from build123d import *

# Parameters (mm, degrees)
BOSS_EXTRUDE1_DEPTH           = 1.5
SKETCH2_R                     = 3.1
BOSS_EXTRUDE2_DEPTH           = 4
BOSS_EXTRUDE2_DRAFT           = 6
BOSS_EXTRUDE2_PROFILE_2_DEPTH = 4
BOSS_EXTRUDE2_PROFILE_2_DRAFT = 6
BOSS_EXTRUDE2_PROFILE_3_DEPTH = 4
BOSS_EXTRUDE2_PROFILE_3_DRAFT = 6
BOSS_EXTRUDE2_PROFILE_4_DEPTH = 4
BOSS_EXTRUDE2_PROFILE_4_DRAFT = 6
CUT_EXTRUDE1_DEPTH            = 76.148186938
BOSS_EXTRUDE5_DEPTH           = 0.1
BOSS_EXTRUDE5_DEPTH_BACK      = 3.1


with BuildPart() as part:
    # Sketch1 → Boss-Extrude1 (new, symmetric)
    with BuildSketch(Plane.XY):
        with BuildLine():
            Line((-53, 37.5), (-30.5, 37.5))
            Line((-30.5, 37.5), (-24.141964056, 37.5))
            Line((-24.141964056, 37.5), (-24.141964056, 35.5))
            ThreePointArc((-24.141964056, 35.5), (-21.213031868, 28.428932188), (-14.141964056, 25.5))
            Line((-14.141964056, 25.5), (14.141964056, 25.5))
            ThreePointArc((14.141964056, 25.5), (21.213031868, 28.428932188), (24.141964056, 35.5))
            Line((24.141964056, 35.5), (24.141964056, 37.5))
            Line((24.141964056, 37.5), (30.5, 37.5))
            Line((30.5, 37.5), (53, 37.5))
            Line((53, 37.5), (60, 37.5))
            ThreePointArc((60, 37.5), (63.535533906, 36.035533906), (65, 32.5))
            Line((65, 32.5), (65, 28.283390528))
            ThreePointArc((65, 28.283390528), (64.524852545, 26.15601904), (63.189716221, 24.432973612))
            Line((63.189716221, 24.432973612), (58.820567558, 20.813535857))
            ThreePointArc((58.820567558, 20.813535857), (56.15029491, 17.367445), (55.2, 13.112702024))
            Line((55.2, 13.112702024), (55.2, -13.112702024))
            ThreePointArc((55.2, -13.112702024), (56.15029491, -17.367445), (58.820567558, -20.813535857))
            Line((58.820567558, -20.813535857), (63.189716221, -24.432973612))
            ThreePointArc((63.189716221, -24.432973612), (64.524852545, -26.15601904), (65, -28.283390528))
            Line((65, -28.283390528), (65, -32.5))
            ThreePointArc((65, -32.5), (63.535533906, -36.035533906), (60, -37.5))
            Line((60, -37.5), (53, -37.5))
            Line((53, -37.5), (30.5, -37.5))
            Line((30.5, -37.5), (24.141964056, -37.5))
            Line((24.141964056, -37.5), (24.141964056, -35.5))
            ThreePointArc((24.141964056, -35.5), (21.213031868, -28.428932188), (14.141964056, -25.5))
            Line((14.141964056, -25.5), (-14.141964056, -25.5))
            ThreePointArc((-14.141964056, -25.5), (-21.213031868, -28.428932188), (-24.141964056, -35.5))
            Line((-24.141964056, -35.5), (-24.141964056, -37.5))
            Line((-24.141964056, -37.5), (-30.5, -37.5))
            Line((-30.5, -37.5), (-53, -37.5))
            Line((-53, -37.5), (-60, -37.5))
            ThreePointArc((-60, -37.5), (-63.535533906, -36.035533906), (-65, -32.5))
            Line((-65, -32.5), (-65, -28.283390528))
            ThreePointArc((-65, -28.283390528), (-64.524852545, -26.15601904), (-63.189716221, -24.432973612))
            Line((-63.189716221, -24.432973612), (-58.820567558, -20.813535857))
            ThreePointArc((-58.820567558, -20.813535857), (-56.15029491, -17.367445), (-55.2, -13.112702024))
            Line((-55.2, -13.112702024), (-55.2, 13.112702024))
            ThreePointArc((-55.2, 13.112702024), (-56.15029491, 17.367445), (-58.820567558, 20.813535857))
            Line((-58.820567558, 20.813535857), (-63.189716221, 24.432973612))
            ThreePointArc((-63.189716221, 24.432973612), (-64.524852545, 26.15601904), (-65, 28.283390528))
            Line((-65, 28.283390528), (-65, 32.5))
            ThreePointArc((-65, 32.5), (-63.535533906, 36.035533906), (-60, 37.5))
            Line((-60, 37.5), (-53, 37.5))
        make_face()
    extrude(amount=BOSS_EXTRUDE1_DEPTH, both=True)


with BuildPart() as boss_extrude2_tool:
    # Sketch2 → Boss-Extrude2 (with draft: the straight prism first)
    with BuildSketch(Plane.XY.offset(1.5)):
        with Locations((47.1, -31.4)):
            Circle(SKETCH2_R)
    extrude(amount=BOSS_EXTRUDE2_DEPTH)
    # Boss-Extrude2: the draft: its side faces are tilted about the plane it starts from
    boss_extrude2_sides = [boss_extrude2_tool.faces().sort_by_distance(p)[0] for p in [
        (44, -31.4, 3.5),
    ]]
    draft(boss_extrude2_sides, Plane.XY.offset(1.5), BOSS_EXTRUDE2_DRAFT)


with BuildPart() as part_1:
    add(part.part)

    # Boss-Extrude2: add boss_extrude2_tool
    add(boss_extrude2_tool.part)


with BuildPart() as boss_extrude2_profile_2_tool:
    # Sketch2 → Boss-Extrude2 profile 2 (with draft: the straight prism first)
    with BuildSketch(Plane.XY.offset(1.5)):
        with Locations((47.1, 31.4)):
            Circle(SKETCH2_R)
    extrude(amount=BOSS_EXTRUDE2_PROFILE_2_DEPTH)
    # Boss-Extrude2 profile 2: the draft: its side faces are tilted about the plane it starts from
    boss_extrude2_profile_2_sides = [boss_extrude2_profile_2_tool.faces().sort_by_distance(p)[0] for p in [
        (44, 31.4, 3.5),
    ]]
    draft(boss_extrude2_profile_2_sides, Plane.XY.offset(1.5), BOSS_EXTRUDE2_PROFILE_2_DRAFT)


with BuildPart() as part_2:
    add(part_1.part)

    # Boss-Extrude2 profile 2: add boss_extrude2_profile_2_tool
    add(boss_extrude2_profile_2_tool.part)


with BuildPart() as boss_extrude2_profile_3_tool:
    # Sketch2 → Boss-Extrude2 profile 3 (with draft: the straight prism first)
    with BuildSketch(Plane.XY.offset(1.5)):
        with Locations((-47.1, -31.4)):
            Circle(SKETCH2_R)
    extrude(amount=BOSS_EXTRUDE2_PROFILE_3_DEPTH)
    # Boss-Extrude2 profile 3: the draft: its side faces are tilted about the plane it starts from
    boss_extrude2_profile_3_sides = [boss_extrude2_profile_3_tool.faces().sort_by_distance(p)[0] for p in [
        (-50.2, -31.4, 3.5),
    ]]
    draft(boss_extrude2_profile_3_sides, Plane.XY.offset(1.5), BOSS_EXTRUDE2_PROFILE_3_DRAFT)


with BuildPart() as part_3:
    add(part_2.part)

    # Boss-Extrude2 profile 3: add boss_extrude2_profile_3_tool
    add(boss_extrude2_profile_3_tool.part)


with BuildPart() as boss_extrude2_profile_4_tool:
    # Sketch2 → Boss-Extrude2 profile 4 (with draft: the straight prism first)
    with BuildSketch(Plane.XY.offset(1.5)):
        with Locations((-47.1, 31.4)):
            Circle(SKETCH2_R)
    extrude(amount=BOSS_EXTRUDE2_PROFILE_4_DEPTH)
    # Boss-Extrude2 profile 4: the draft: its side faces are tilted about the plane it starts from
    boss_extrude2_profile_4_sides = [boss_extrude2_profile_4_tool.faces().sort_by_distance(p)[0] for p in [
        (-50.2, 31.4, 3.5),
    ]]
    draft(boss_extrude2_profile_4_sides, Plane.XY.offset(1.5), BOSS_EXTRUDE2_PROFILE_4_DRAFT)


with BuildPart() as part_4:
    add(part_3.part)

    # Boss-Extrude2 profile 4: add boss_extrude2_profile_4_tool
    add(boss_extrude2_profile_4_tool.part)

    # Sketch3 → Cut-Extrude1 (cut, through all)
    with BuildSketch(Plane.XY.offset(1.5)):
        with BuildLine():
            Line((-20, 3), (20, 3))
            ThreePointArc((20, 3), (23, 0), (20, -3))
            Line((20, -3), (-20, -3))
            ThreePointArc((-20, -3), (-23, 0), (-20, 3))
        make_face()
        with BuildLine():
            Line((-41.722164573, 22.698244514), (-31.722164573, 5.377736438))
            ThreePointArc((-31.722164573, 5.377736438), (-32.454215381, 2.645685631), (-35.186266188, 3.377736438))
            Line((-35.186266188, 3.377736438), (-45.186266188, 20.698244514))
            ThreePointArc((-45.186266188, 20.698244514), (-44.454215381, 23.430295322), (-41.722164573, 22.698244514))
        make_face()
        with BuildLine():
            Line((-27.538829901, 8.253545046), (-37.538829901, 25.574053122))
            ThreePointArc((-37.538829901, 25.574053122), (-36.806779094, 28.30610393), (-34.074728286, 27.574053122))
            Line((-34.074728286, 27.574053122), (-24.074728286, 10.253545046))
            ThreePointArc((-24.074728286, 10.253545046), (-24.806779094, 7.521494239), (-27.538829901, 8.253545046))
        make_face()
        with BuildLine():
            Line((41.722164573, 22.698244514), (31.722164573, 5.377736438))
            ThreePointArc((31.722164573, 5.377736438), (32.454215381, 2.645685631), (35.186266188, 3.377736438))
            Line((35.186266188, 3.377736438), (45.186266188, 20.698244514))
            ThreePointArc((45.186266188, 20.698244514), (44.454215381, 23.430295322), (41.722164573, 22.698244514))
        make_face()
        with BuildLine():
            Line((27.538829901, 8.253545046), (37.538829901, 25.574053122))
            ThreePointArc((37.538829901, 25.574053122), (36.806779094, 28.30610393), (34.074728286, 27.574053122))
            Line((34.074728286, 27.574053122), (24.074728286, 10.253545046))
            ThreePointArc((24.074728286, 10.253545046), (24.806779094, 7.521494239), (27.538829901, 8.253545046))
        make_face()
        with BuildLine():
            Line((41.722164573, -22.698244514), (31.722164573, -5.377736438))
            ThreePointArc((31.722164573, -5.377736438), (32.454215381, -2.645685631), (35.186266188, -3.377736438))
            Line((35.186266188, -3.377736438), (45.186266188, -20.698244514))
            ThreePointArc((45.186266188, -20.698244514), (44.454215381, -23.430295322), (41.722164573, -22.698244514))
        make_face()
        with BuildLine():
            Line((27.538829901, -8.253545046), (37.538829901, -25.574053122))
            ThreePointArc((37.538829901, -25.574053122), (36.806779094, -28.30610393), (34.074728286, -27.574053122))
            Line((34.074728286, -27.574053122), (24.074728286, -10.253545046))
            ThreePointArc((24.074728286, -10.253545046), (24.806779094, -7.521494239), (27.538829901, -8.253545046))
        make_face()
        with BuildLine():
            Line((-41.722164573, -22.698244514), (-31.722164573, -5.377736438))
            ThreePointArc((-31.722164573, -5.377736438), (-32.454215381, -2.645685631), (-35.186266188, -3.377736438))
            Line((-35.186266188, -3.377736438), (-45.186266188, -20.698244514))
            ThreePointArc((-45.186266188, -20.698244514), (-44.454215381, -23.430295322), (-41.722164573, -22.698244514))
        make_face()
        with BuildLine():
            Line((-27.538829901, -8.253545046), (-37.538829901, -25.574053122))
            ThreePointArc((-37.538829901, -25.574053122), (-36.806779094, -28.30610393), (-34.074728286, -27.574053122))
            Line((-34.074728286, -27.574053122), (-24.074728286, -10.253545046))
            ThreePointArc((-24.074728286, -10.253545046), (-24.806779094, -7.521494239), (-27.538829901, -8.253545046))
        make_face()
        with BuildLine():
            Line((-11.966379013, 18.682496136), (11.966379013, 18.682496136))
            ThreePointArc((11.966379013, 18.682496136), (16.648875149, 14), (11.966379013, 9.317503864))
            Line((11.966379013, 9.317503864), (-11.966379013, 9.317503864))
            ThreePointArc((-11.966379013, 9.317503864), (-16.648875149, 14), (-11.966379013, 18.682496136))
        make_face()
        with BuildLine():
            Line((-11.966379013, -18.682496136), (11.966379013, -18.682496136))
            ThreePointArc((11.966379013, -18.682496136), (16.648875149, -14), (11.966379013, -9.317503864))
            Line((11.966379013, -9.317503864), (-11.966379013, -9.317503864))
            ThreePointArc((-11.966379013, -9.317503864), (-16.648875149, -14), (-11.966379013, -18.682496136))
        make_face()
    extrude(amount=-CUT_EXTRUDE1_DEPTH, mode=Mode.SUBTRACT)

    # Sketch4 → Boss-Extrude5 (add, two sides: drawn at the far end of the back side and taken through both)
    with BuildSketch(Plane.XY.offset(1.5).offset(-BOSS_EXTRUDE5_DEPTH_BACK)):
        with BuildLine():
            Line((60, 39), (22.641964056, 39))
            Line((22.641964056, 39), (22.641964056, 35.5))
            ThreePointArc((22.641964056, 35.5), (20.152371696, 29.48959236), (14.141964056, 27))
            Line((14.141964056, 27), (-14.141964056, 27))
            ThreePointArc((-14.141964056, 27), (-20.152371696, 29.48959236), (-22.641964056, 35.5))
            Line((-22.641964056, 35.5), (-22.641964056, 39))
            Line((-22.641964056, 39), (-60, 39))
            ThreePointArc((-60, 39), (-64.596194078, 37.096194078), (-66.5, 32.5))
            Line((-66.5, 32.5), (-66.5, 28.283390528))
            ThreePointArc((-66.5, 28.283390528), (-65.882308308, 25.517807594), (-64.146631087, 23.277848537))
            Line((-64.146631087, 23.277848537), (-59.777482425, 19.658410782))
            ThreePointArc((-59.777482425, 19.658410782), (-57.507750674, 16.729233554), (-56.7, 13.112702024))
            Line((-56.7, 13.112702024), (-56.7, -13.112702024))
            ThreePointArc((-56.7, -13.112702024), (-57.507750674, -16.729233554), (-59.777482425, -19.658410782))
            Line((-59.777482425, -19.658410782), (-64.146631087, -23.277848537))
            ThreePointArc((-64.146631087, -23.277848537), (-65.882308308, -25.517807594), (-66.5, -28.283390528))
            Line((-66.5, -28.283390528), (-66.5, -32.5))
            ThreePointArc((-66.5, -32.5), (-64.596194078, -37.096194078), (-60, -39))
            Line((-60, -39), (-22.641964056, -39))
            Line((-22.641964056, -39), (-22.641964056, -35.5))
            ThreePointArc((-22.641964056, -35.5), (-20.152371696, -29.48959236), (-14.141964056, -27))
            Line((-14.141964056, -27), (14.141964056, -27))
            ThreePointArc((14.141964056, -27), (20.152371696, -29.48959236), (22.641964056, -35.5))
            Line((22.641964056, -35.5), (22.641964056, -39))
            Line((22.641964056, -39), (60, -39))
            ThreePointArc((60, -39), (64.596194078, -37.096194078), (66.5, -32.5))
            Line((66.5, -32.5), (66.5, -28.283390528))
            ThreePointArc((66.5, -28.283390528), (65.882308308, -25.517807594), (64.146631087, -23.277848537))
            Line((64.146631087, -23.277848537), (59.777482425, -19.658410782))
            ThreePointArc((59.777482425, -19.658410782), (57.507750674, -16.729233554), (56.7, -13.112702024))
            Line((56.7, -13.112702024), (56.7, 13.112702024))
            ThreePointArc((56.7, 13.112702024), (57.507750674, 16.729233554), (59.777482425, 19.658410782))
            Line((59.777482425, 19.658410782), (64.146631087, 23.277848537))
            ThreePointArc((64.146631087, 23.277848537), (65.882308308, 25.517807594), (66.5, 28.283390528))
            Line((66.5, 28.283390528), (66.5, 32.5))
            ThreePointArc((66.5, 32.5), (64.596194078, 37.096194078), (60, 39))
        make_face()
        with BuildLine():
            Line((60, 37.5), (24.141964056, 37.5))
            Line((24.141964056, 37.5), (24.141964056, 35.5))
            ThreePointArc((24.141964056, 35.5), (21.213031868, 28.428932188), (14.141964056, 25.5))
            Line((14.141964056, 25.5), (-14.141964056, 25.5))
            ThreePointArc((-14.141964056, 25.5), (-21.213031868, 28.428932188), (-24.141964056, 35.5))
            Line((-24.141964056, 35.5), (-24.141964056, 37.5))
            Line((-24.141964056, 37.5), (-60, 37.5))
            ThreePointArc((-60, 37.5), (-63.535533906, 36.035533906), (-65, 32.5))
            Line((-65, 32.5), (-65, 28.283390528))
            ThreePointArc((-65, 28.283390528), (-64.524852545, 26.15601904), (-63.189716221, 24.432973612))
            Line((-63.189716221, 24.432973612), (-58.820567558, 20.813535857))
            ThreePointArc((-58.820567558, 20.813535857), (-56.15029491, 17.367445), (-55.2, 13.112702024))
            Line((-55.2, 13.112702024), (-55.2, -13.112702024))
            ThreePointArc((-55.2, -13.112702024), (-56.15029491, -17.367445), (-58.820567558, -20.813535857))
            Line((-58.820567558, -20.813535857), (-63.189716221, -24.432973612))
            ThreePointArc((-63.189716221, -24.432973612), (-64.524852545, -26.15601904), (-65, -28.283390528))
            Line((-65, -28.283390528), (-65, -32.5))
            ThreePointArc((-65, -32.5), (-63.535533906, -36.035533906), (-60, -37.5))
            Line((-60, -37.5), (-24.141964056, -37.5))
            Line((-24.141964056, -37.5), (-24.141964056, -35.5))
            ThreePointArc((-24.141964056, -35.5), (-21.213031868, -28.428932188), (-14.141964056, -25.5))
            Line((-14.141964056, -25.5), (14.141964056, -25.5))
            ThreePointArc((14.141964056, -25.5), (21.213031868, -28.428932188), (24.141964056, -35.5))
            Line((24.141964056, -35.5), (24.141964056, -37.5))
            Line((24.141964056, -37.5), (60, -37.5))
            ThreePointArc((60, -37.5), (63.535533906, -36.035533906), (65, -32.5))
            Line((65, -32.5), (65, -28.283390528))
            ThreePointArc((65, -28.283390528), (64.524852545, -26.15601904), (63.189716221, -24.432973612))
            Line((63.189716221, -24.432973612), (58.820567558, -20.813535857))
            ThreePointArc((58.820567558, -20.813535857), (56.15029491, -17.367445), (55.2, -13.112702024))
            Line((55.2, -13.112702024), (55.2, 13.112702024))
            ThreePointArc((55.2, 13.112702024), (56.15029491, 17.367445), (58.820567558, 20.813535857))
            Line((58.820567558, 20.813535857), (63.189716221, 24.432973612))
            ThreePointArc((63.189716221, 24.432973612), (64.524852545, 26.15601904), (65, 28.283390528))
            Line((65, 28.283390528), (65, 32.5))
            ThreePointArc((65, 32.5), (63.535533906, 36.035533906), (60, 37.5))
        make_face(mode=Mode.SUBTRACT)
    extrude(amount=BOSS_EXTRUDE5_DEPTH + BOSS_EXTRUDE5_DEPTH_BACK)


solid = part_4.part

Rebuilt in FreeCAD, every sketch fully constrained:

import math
import FreeCAD as App
import Part
import Sketcher
from FreeCAD import Vector
Q = App.Units.Quantity


def faces_at(feature, points):
    """Names of the faces that lie closest to the given points."""
    faces = feature.Shape.Faces
    near = lambda p: min(range(len(faces)), key=lambda i: faces[i].distToShape(Part.Vertex(*p))[0])
    return sorted({f"Face{near(p) + 1}" for p in points})

doc = App.newDocument("Part")
body = doc.addObject("PartDesign::Body", "Body")

# Sketch on XY plane
sketch1 = doc.addObject("Sketcher::SketchObject", "Sketch")
body.addObject(sketch1)
sketch1.AttachmentSupport = (doc.XY_Plane, [""])
sketch1.MapMode = "FlatFace"
sketch1.addGeometry([
    Part.LineSegment(Vector(-24.1, 35.5, 0), Vector(-24.1, 37.5, 0)),  # 0
    Part.LineSegment(Vector(-24.1, 37.5, 0), Vector(-60, 37.5, 0)),  # 1
    Part.ArcOfCircle(Part.Circle(Vector(-60, 32.5, 0), Vector(0, 0, 1), 5), math.radians(90), math.radians(180)),  # 2
    Part.LineSegment(Vector(-65, 32.5, 0), Vector(-65, 28.3, 0)),  # 3
    Part.ArcOfCircle(Part.Circle(Vector(-60, 28.3, 0), Vector(0, 0, 1), 5), math.radians(180), math.radians(230)),  # 4
    Part.LineSegment(Vector(-63.2, 24.4, 0), Vector(-58.8, 20.8, 0)),  # 5
    Part.ArcOfCircle(Part.Circle(Vector(-65.2, 13.1, 0), Vector(0, 0, 1), 10), math.radians(0), math.radians(50)),  # 6
    Part.LineSegment(Vector(-55.2, 13.1, 0), Vector(-55.2, -13.1, 0)),  # 7
    Part.ArcOfCircle(Part.Circle(Vector(-65.2, -13.1, 0), Vector(0, 0, 1), 10), math.radians(-50), math.radians(0)),  # 8
    Part.LineSegment(Vector(-58.8, -20.8, 0), Vector(-63.2, -24.4, 0)),  # 9
    Part.ArcOfCircle(Part.Circle(Vector(-60, -28.3, 0), Vector(0, 0, 1), 5), math.radians(130), math.radians(180)),  # 10
    Part.LineSegment(Vector(-65, -28.3, 0), Vector(-65, -32.5, 0)),  # 11
    Part.ArcOfCircle(Part.Circle(Vector(-60, -32.5, 0), Vector(0, 0, 1), 5), math.radians(180), math.radians(270)),  # 12
    Part.LineSegment(Vector(-60, -37.5, 0), Vector(-24.1, -37.5, 0)),  # 13
    Part.LineSegment(Vector(-24.1, -37.5, 0), Vector(-24.1, -35.5, 0)),  # 14
    Part.ArcOfCircle(Part.Circle(Vector(-14.1, -35.5, 0), Vector(0, 0, 1), 10), math.radians(90), math.radians(180)),  # 15
    Part.LineSegment(Vector(-14.1, -25.5, 0), Vector(14.1, -25.5, 0)),  # 16
    Part.ArcOfCircle(Part.Circle(Vector(14.1, -35.5, 0), Vector(0, 0, 1), 10), math.radians(0), math.radians(90)),  # 17
    Part.LineSegment(Vector(24.1, -35.5, 0), Vector(24.1, -37.5, 0)),  # 18
    Part.LineSegment(Vector(24.1, -37.5, 0), Vector(60, -37.5, 0)),  # 19
    Part.ArcOfCircle(Part.Circle(Vector(60, -32.5, 0), Vector(0, 0, 1), 5), math.radians(-90), math.radians(0)),  # 20
    Part.LineSegment(Vector(65, -32.5, 0), Vector(65, -28.3, 0)),  # 21
    Part.ArcOfCircle(Part.Circle(Vector(60, -28.3, 0), Vector(0, 0, 1), 5), math.radians(0), math.radians(50)),  # 22
    Part.LineSegment(Vector(63.2, -24.4, 0), Vector(58.8, -20.8, 0)),  # 23
    Part.ArcOfCircle(Part.Circle(Vector(65.2, -13.1, 0), Vector(0, 0, 1), 10), math.radians(180), math.radians(230)),  # 24
    Part.LineSegment(Vector(55.2, -13.1, 0), Vector(55.2, 13.1, 0)),  # 25
    Part.ArcOfCircle(Part.Circle(Vector(65.2, 13.1, 0), Vector(0, 0, 1), 10), math.radians(130), math.radians(180)),  # 26
    Part.LineSegment(Vector(58.8, 20.8, 0), Vector(63.2, 24.4, 0)),  # 27
    Part.ArcOfCircle(Part.Circle(Vector(60, 28.3, 0), Vector(0, 0, 1), 5), math.radians(-50), math.radians(0)),  # 28
    Part.LineSegment(Vector(65, 28.3, 0), Vector(65, 32.5, 0)),  # 29
    Part.ArcOfCircle(Part.Circle(Vector(60, 32.5, 0), Vector(0, 0, 1), 5), math.radians(0), math.radians(90)),  # 30
    Part.LineSegment(Vector(60, 37.5, 0), Vector(24.1, 37.5, 0)),  # 31
    Part.LineSegment(Vector(24.1, 37.5, 0), Vector(24.1, 35.5, 0)),  # 32
    Part.ArcOfCircle(Part.Circle(Vector(14.1, 35.5, 0), Vector(0, 0, 1), 10), math.radians(-90), math.radians(0)),  # 33
    Part.LineSegment(Vector(14.1, 25.5, 0), Vector(-14.1, 25.5, 0)),  # 34
    Part.ArcOfCircle(Part.Circle(Vector(-14.1, 35.5, 0), Vector(0, 0, 1), 10), math.radians(180), math.radians(270)),  # 35
], False)
sketch1.addConstraint([
    Sketcher.Constraint("Coincident", 0, 2, 1, 1),
    Sketcher.Constraint("Tangent", 1, 2, 2, 1),
    Sketcher.Constraint("Tangent", 2, 2, 3, 1),
    Sketcher.Constraint("Tangent", 3, 2, 4, 1),
    Sketcher.Constraint("Tangent", 4, 2, 5, 1),
    Sketcher.Constraint("Tangent", 5, 2, 6, 2),
    Sketcher.Constraint("Tangent", 6, 1, 7, 1),
    Sketcher.Constraint("Tangent", 7, 2, 8, 2),
    Sketcher.Constraint("Tangent", 8, 1, 9, 1),
    Sketcher.Constraint("Tangent", 9, 2, 10, 1),
    Sketcher.Constraint("Tangent", 10, 2, 11, 1),
    Sketcher.Constraint("Tangent", 11, 2, 12, 1),
    Sketcher.Constraint("Tangent", 12, 2, 13, 1),
    Sketcher.Constraint("Coincident", 13, 2, 14, 1),
    Sketcher.Constraint("Tangent", 14, 2, 15, 2),
    Sketcher.Constraint("Tangent", 15, 1, 16, 1),
    Sketcher.Constraint("Tangent", 16, 2, 17, 2),
    Sketcher.Constraint("Tangent", 17, 1, 18, 1),
    Sketcher.Constraint("Coincident", 18, 2, 19, 1),
    Sketcher.Constraint("Tangent", 19, 2, 20, 1),
    Sketcher.Constraint("Tangent", 20, 2, 21, 1),
    Sketcher.Constraint("Tangent", 21, 2, 22, 1),
    Sketcher.Constraint("Tangent", 22, 2, 23, 1),
    Sketcher.Constraint("Tangent", 23, 2, 24, 2),
    Sketcher.Constraint("Tangent", 24, 1, 25, 1),
    Sketcher.Constraint("Tangent", 25, 2, 26, 2),
    Sketcher.Constraint("Tangent", 26, 1, 27, 1),
    Sketcher.Constraint("Tangent", 27, 2, 28, 1),
    Sketcher.Constraint("Tangent", 28, 2, 29, 1),
    Sketcher.Constraint("Tangent", 29, 2, 30, 1),
    Sketcher.Constraint("Tangent", 30, 2, 31, 1),
    Sketcher.Constraint("Coincident", 31, 2, 32, 1),
    Sketcher.Constraint("Tangent", 32, 2, 33, 2),
    Sketcher.Constraint("Tangent", 33, 1, 34, 1),
    Sketcher.Constraint("Tangent", 34, 2, 35, 2),
    Sketcher.Constraint("Tangent", 35, 1, 0, 1),
    Sketcher.Constraint("Vertical", 0),
    Sketcher.Constraint("Horizontal", 1),
    Sketcher.Constraint("Vertical", 3),
    Sketcher.Constraint("Vertical", 7),
    Sketcher.Constraint("Vertical", 11),
    Sketcher.Constraint("Horizontal", 13),
    Sketcher.Constraint("Vertical", 14),
    Sketcher.Constraint("Horizontal", 16),
    Sketcher.Constraint("Vertical", 18),
    Sketcher.Constraint("Horizontal", 19),
    Sketcher.Constraint("Vertical", 21),
    Sketcher.Constraint("Vertical", 25),
    Sketcher.Constraint("Vertical", 29),
    Sketcher.Constraint("Horizontal", 31),
    Sketcher.Constraint("Vertical", 32),
    Sketcher.Constraint("Horizontal", 34),
    Sketcher.Constraint("Equal", 2, 4),
    Sketcher.Constraint("Equal", 6, 8),
    Sketcher.Constraint("Equal", 4, 10),
    Sketcher.Constraint("Equal", 10, 12),
    Sketcher.Constraint("Equal", 8, 15),
    Sketcher.Constraint("Equal", 15, 17),
    Sketcher.Constraint("Equal", 12, 20),
    Sketcher.Constraint("Equal", 20, 22),
    Sketcher.Constraint("Equal", 17, 24),
    Sketcher.Constraint("Equal", 24, 26),
    Sketcher.Constraint("Equal", 22, 28),
    Sketcher.Constraint("Equal", 28, 30),
    Sketcher.Constraint("Equal", 26, 33),
    Sketcher.Constraint("Equal", 33, 35),
    Sketcher.Constraint("Symmetric", 2, 3, 20, 3, -1, 1),
    Sketcher.Constraint("Symmetric", 6, 3, 24, 3, -1, 1),
    Sketcher.Constraint("Symmetric", 10, 3, 28, 3, -1, 1),
    Sketcher.Constraint("Symmetric", 15, 3, 33, 3, -1, 1),
    Sketcher.Constraint("Symmetric", 12, 3, 20, 3, -2),
    Sketcher.Constraint("Symmetric", 9, 2, 22, 2, -2),
    Sketcher.Constraint("Symmetric", 5, 2, 26, 1, -2),
    Sketcher.Constraint("Symmetric", 0, 2, 31, 2, -2),
    Sketcher.Constraint("Vertical", 17, 3, 33, 3),
    Sketcher.Constraint("Radius", 2, Q("5 mm")),
    Sketcher.Constraint("Radius", 6, Q("10 mm")),
    Sketcher.Constraint("DistanceY", 0, 1, 0, 2, Q("2 mm")),
    Sketcher.Constraint("DistanceX", 2, 3, -1, 1, Q("60 mm")),
    Sketcher.Constraint("DistanceY", 12, 3, 2, 3, Q("65 mm")),
    Sketcher.Constraint("DistanceX", 6, 3, -1, 1, Q("65.2 mm")),
    Sketcher.Constraint("DistanceX", 16, 1, 16, 2, Q("28.283928 mm")),
    Sketcher.Constraint("DistanceY", 3, 2, 3, 1, Q("4.216609 mm")),
    Sketcher.Constraint("DistanceY", 7, 2, 7, 1, Q("26.225404 mm")),
])
pad1 = doc.addObject("PartDesign::Pad", "Pad")
body.addObject(pad1)
pad1.Profile = sketch1
pad1.Length = 3
pad1.Midplane = True
body2 = doc.addObject("PartDesign::Body", "Body001")

# Sketch on XY plane
sketch2 = doc.addObject("Sketcher::SketchObject", "Sketch001")
body2.addObject(sketch2)
sketch2.AttachmentSupport = (doc.getObject("XY_Plane001"), [""])
sketch2.MapMode = "FlatFace"
sketch2.AttachmentOffset = App.Placement(Vector(0, 0, 1.5), App.Rotation())
sketch2.addGeometry(Part.Circle(Vector(47.1, -31.4, 0), Vector(0, 0, 1), 3.1), False)
sketch2.addConstraint([
    Sketcher.Constraint("Diameter", 0, Q("6.2 mm")),
    Sketcher.Constraint("DistanceX", -1, 1, 0, 3, Q("47.1 mm")),
    Sketcher.Constraint("DistanceY", 0, 3, -1, 1, Q("31.4 mm")),
])
pad2 = doc.addObject("PartDesign::Pad", "Pad001")
body2.addObject(pad2)
pad2.Profile = sketch2
pad2.Length = 4
doc.recompute()

datumplane = doc.addObject("PartDesign::Plane", "DatumPlane")
body2.addObject(datumplane)
datumplane.AttachmentSupport = (doc.getObject("XY_Plane001"), [""])
datumplane.MapMode = "FlatFace"
datumplane.AttachmentOffset = App.Placement(Vector(0, 0, 1.5), App.Rotation())
draft = doc.addObject("PartDesign::Draft", "Draft")
body2.addObject(draft)
draft.Base = (pad2, faces_at(pad2, [(44, -31.4, 3.5)]))
draft.NeutralPlane = (datumplane, [""])
draft.Angle = 6
draft.Reversed = False
doc.recompute()

boolean = doc.addObject("PartDesign::Boolean", "Boolean")
body.addObject(boolean)
boolean.Type = "Fuse"
boolean.addObjects([body2])
body3 = doc.addObject("PartDesign::Body", "Body002")

# Sketch on XY plane
sketch3 = doc.addObject("Sketcher::SketchObject", "Sketch002")
body3.addObject(sketch3)
sketch3.AttachmentSupport = (doc.getObject("XY_Plane002"), [""])
sketch3.MapMode = "FlatFace"
sketch3.AttachmentOffset = App.Placement(Vector(0, 0, 1.5), App.Rotation())
sketch3.addGeometry(Part.Circle(Vector(47.1, 31.4, 0), Vector(0, 0, 1), 3.1), False)
sketch3.addConstraint([
    Sketcher.Constraint("Diameter", 0, Q("6.2 mm")),
    Sketcher.Constraint("DistanceX", -1, 1, 0, 3, Q("47.1 mm")),
    Sketcher.Constraint("DistanceY", -1, 1, 0, 3, Q("31.4 mm")),
])
pad3 = doc.addObject("PartDesign::Pad", "Pad002")
body3.addObject(pad3)
pad3.Profile = sketch3
pad3.Length = 4
doc.recompute()

datumplane2 = doc.addObject("PartDesign::Plane", "DatumPlane001")
body3.addObject(datumplane2)
datumplane2.AttachmentSupport = (doc.getObject("XY_Plane002"), [""])
datumplane2.MapMode = "FlatFace"
datumplane2.AttachmentOffset = App.Placement(Vector(0, 0, 1.5), App.Rotation())
draft2 = doc.addObject("PartDesign::Draft", "Draft001")
body3.addObject(draft2)
draft2.Base = (pad3, faces_at(pad3, [(44, 31.4, 3.5)]))
draft2.NeutralPlane = (datumplane2, [""])
draft2.Angle = 6
draft2.Reversed = False
doc.recompute()

boolean2 = doc.addObject("PartDesign::Boolean", "Boolean001")
body.addObject(boolean2)
boolean2.Type = "Fuse"
boolean2.addObjects([body3])
body4 = doc.addObject("PartDesign::Body", "Body003")

# Sketch on XY plane
sketch4 = doc.addObject("Sketcher::SketchObject", "Sketch003")
body4.addObject(sketch4)
sketch4.AttachmentSupport = (doc.getObject("XY_Plane003"), [""])
sketch4.MapMode = "FlatFace"
sketch4.AttachmentOffset = App.Placement(Vector(0, 0, 1.5), App.Rotation())
sketch4.addGeometry(Part.Circle(Vector(-47.1, -31.4, 0), Vector(0, 0, 1), 3.1), False)
sketch4.addConstraint([
    Sketcher.Constraint("Diameter", 0, Q("6.2 mm")),
    Sketcher.Constraint("DistanceX", 0, 3, -1, 1, Q("47.1 mm")),
    Sketcher.Constraint("DistanceY", 0, 3, -1, 1, Q("31.4 mm")),
])
pad4 = doc.addObject("PartDesign::Pad", "Pad003")
body4.addObject(pad4)
pad4.Profile = sketch4
pad4.Length = 4
doc.recompute()

datumplane3 = doc.addObject("PartDesign::Plane", "DatumPlane002")
body4.addObject(datumplane3)
datumplane3.AttachmentSupport = (doc.getObject("XY_Plane003"), [""])
datumplane3.MapMode = "FlatFace"
datumplane3.AttachmentOffset = App.Placement(Vector(0, 0, 1.5), App.Rotation())
draft3 = doc.addObject("PartDesign::Draft", "Draft002")
body4.addObject(draft3)
draft3.Base = (pad4, faces_at(pad4, [(-50.2, -31.4, 3.5)]))
draft3.NeutralPlane = (datumplane3, [""])
draft3.Angle = 6
draft3.Reversed = False
doc.recompute()

boolean3 = doc.addObject("PartDesign::Boolean", "Boolean002")
body.addObject(boolean3)
boolean3.Type = "Fuse"
boolean3.addObjects([body4])
body5 = doc.addObject("PartDesign::Body", "Body004")

# Sketch on XY plane
sketch5 = doc.addObject("Sketcher::SketchObject", "Sketch004")
body5.addObject(sketch5)
sketch5.AttachmentSupport = (doc.getObject("XY_Plane004"), [""])
sketch5.MapMode = "FlatFace"
sketch5.AttachmentOffset = App.Placement(Vector(0, 0, 1.5), App.Rotation())
sketch5.addGeometry(Part.Circle(Vector(-47.1, 31.4, 0), Vector(0, 0, 1), 3.1), False)
sketch5.addConstraint([
    Sketcher.Constraint("Diameter", 0, Q("6.2 mm")),
    Sketcher.Constraint("DistanceX", 0, 3, -1, 1, Q("47.1 mm")),
    Sketcher.Constraint("DistanceY", -1, 1, 0, 3, Q("31.4 mm")),
])
pad5 = doc.addObject("PartDesign::Pad", "Pad004")
body5.addObject(pad5)
pad5.Profile = sketch5
pad5.Length = 4
doc.recompute()

datumplane4 = doc.addObject("PartDesign::Plane", "DatumPlane003")
body5.addObject(datumplane4)
datumplane4.AttachmentSupport = (doc.getObject("XY_Plane004"), [""])
datumplane4.MapMode = "FlatFace"
datumplane4.AttachmentOffset = App.Placement(Vector(0, 0, 1.5), App.Rotation())
draft4 = doc.addObject("PartDesign::Draft", "Draft003")
body5.addObject(draft4)
draft4.Base = (pad5, faces_at(pad5, [(-50.2, 31.4, 3.5)]))
draft4.NeutralPlane = (datumplane4, [""])
draft4.Angle = 6
draft4.Reversed = False
doc.recompute()

boolean4 = doc.addObject("PartDesign::Boolean", "Boolean003")
body.addObject(boolean4)
boolean4.Type = "Fuse"
boolean4.addObjects([body5])

# Sketch on XY plane
sketch6 = doc.addObject("Sketcher::SketchObject", "Sketch005")
body.addObject(sketch6)
sketch6.AttachmentSupport = (doc.XY_Plane, [""])
sketch6.MapMode = "FlatFace"
sketch6.AttachmentOffset = App.Placement(Vector(0, 0, 1.5), App.Rotation())
sketch6.addGeometry([
    Part.LineSegment(Vector(20, 3, 0), Vector(-20, 3, 0)),  # 0
    Part.ArcOfCircle(Part.Circle(Vector(-20, 0, 0), Vector(0, 0, 1), 3), math.radians(90), math.radians(270)),  # 1
    Part.LineSegment(Vector(-20, -3, 0), Vector(20, -3, 0)),  # 2
    Part.ArcOfCircle(Part.Circle(Vector(20, 0, 0), Vector(0, 0, 1), 3), math.radians(-90), math.radians(90)),  # 3
    Part.LineSegment(Vector(-31.7, 5.4, 0), Vector(-41.7, 22.7, 0)),  # 4
    Part.ArcOfCircle(Part.Circle(Vector(-43.5, 21.7, 0), Vector(0, 0, 1), 2), math.radians(30), math.radians(210)),  # 5
    Part.LineSegment(Vector(-45.2, 20.7, 0), Vector(-35.2, 3.4, 0)),  # 6
    Part.ArcOfCircle(Part.Circle(Vector(-33.5, 4.4, 0), Vector(0, 0, 1), 2), math.radians(-150), math.radians(30)),  # 7
    Part.LineSegment(Vector(-37.5, 25.6, 0), Vector(-27.5, 8.3, 0)),  # 8
    Part.ArcOfCircle(Part.Circle(Vector(-25.8, 9.3, 0), Vector(0, 0, 1), 2), math.radians(-150), math.radians(30)),  # 9
    Part.LineSegment(Vector(-24.1, 10.3, 0), Vector(-34.1, 27.6, 0)),  # 10
    Part.ArcOfCircle(Part.Circle(Vector(-35.8, 26.6, 0), Vector(0, 0, 1), 2), math.radians(30), math.radians(210)),  # 11
    Part.LineSegment(Vector(41.7, 22.7, 0), Vector(31.7, 5.4, 0)),  # 12
    Part.ArcOfCircle(Part.Circle(Vector(33.5, 4.4, 0), Vector(0, 0, 1), 2), math.radians(150), math.radians(330)),  # 13
    Part.LineSegment(Vector(35.2, 3.4, 0), Vector(45.2, 20.7, 0)),  # 14
    Part.ArcOfCircle(Part.Circle(Vector(43.5, 21.7, 0), Vector(0, 0, 1), 2), math.radians(-30), math.radians(150)),  # 15
    Part.LineSegment(Vector(27.5, 8.3, 0), Vector(37.5, 25.6, 0)),  # 16
    Part.ArcOfCircle(Part.Circle(Vector(35.8, 26.6, 0), Vector(0, 0, 1), 2), math.radians(-30), math.radians(150)),  # 17
    Part.LineSegment(Vector(34.1, 27.6, 0), Vector(24.1, 10.3, 0)),  # 18
    Part.ArcOfCircle(Part.Circle(Vector(25.8, 9.3, 0), Vector(0, 0, 1), 2), math.radians(150), math.radians(330)),  # 19
    Part.LineSegment(Vector(31.7, -5.4, 0), Vector(41.7, -22.7, 0)),  # 20
    Part.ArcOfCircle(Part.Circle(Vector(43.5, -21.7, 0), Vector(0, 0, 1), 2), math.radians(-150), math.radians(30)),  # 21
    Part.LineSegment(Vector(45.2, -20.7, 0), Vector(35.2, -3.4, 0)),  # 22
    Part.ArcOfCircle(Part.Circle(Vector(33.5, -4.4, 0), Vector(0, 0, 1), 2), math.radians(30), math.radians(210)),  # 23
    Part.LineSegment(Vector(37.5, -25.6, 0), Vector(27.5, -8.3, 0)),  # 24
    Part.ArcOfCircle(Part.Circle(Vector(25.8, -9.3, 0), Vector(0, 0, 1), 2), math.radians(30), math.radians(210)),  # 25
    Part.LineSegment(Vector(24.1, -10.3, 0), Vector(34.1, -27.6, 0)),  # 26
    Part.ArcOfCircle(Part.Circle(Vector(35.8, -26.6, 0), Vector(0, 0, 1), 2), math.radians(-150), math.radians(30)),  # 27
    Part.LineSegment(Vector(-41.7, -22.7, 0), Vector(-31.7, -5.4, 0)),  # 28
    Part.ArcOfCircle(Part.Circle(Vector(-33.5, -4.4, 0), Vector(0, 0, 1), 2), math.radians(-30), math.radians(150)),  # 29
    Part.LineSegment(Vector(-35.2, -3.4, 0), Vector(-45.2, -20.7, 0)),  # 30
    Part.ArcOfCircle(Part.Circle(Vector(-43.5, -21.7, 0), Vector(0, 0, 1), 2), math.radians(150), math.radians(330)),  # 31
    Part.LineSegment(Vector(-27.5, -8.3, 0), Vector(-37.5, -25.6, 0)),  # 32
    Part.ArcOfCircle(Part.Circle(Vector(-35.8, -26.6, 0), Vector(0, 0, 1), 2), math.radians(150), math.radians(330)),  # 33
    Part.LineSegment(Vector(-34.1, -27.6, 0), Vector(-24.1, -10.3, 0)),  # 34
    Part.ArcOfCircle(Part.Circle(Vector(-25.8, -9.3, 0), Vector(0, 0, 1), 2), math.radians(-30), math.radians(150)),  # 35
    Part.LineSegment(Vector(12, 18.7, 0), Vector(-12, 18.7, 0)),  # 36
    Part.ArcOfCircle(Part.Circle(Vector(-12, 14, 0), Vector(0, 0, 1), 4.7), math.radians(90), math.radians(270)),  # 37
    Part.LineSegment(Vector(-12, 9.3, 0), Vector(12, 9.3, 0)),  # 38
    Part.ArcOfCircle(Part.Circle(Vector(12, 14, 0), Vector(0, 0, 1), 4.7), math.radians(-90), math.radians(90)),  # 39
    Part.LineSegment(Vector(-12, -18.7, 0), Vector(12, -18.7, 0)),  # 40
    Part.ArcOfCircle(Part.Circle(Vector(12, -14, 0), Vector(0, 0, 1), 4.7), math.radians(-90), math.radians(90)),  # 41
    Part.LineSegment(Vector(12, -9.3, 0), Vector(-12, -9.3, 0)),  # 42
    Part.ArcOfCircle(Part.Circle(Vector(-12, -14, 0), Vector(0, 0, 1), 4.7), math.radians(90), math.radians(270)),  # 43
], False)
sketch6.addConstraint([
    Sketcher.Constraint("Tangent", 0, 2, 1, 1),
    Sketcher.Constraint("Tangent", 1, 2, 2, 1),
    Sketcher.Constraint("Tangent", 2, 2, 3, 1),
    Sketcher.Constraint("Tangent", 3, 2, 0, 1),
    Sketcher.Constraint("Tangent", 4, 2, 5, 1),
    Sketcher.Constraint("Tangent", 5, 2, 6, 1),
    Sketcher.Constraint("Tangent", 6, 2, 7, 1),
    Sketcher.Constraint("Tangent", 7, 2, 4, 1),
    Sketcher.Constraint("Tangent", 8, 2, 9, 1),
    Sketcher.Constraint("Tangent", 9, 2, 10, 1),
    Sketcher.Constraint("Tangent", 10, 2, 11, 1),
    Sketcher.Constraint("Tangent", 11, 2, 8, 1),
    Sketcher.Constraint("Tangent", 12, 2, 13, 1),
    Sketcher.Constraint("Tangent", 13, 2, 14, 1),
    Sketcher.Constraint("Tangent", 14, 2, 15, 1),
    Sketcher.Constraint("Tangent", 15, 2, 12, 1),
    Sketcher.Constraint("Tangent", 16, 2, 17, 1),
    Sketcher.Constraint("Tangent", 17, 2, 18, 1),
    Sketcher.Constraint("Tangent", 18, 2, 19, 1),
    Sketcher.Constraint("Tangent", 19, 2, 16, 1),
    Sketcher.Constraint("Tangent", 20, 2, 21, 1),
    Sketcher.Constraint("Tangent", 21, 2, 22, 1),
    Sketcher.Constraint("Tangent", 22, 2, 23, 1),
    Sketcher.Constraint("Tangent", 23, 2, 20, 1),
    Sketcher.Constraint("Tangent", 24, 2, 25, 1),
    Sketcher.Constraint("Tangent", 25, 2, 26, 1),
    Sketcher.Constraint("Tangent", 26, 2, 27, 1),
    Sketcher.Constraint("Tangent", 27, 2, 24, 1),
    Sketcher.Constraint("Tangent", 28, 2, 29, 1),
    Sketcher.Constraint("Tangent", 29, 2, 30, 1),
    Sketcher.Constraint("Tangent", 30, 2, 31, 1),
    Sketcher.Constraint("Tangent", 31, 2, 28, 1),
    Sketcher.Constraint("Tangent", 32, 2, 33, 1),
    Sketcher.Constraint("Tangent", 33, 2, 34, 1),
    Sketcher.Constraint("Tangent", 34, 2, 35, 1),
    Sketcher.Constraint("Tangent", 35, 2, 32, 1),
    Sketcher.Constraint("Tangent", 36, 2, 37, 1),
    Sketcher.Constraint("Tangent", 37, 2, 38, 1),
    Sketcher.Constraint("Tangent", 38, 2, 39, 1),
    Sketcher.Constraint("Tangent", 39, 2, 36, 1),
    Sketcher.Constraint("Tangent", 40, 2, 41, 1),
    Sketcher.Constraint("Tangent", 41, 2, 42, 1),
    Sketcher.Constraint("Tangent", 42, 2, 43, 1),
    Sketcher.Constraint("Tangent", 43, 2, 40, 1),
    Sketcher.Constraint("Horizontal", 0),
    Sketcher.Constraint("Horizontal", 2),
    Sketcher.Constraint("Horizontal", 36),
    Sketcher.Constraint("Horizontal", 38),
    Sketcher.Constraint("Horizontal", 40),
    Sketcher.Constraint("Horizontal", 42),
    Sketcher.Constraint("Equal", 5, 7),
    Sketcher.Constraint("Equal", 7, 9),
    Sketcher.Constraint("Equal", 9, 11),
    Sketcher.Constraint("Equal", 11, 13),
    Sketcher.Constraint("Equal", 13, 15),
    Sketcher.Constraint("Equal", 15, 17),
    Sketcher.Constraint("Equal", 17, 19),
    Sketcher.Constraint("Equal", 19, 21),
    Sketcher.Constraint("Equal", 21, 23),
    Sketcher.Constraint("Equal", 23, 25),
    Sketcher.Constraint("Equal", 25, 27),
    Sketcher.Constraint("Equal", 27, 29),
    Sketcher.Constraint("Equal", 29, 31),
    Sketcher.Constraint("Equal", 31, 33),
    Sketcher.Constraint("Equal", 33, 35),
    Sketcher.Constraint("Equal", 39, 41),
    Sketcher.Constraint("Symmetric", 1, 3, 3, 3, -1, 1),
    Sketcher.Constraint("Symmetric", 5, 3, 21, 3, -1, 1),
    Sketcher.Constraint("Symmetric", 7, 3, 23, 3, -1, 1),
    Sketcher.Constraint("Symmetric", 9, 3, 25, 3, -1, 1),
    Sketcher.Constraint("Symmetric", 11, 3, 27, 3, -1, 1),
    Sketcher.Constraint("Symmetric", 13, 3, 29, 3, -1, 1),
    Sketcher.Constraint("Symmetric", 15, 3, 31, 3, -1, 1),
    Sketcher.Constraint("Symmetric", 17, 3, 33, 3, -1, 1),
    Sketcher.Constraint("Symmetric", 19, 3, 35, 3, -1, 1),
    Sketcher.Constraint("Symmetric", 37, 3, 41, 3, -1, 1),
    Sketcher.Constraint("Symmetric", 7, 3, 13, 3, -2),
    Sketcher.Constraint("Symmetric", 5, 3, 15, 3, -2),
    Sketcher.Constraint("Symmetric", 11, 3, 17, 3, -2),
    Sketcher.Constraint("Symmetric", 9, 3, 19, 3, -2),
    Sketcher.Constraint("Parallel", 6, 8),
    Sketcher.Constraint("Vertical", 39, 3, 41, 3),
    Sketcher.Constraint("Vertical", 37, 3, 43, 3),
    Sketcher.Constraint("Equal", 6, 8),
    Sketcher.Constraint("Radius", 1, Q("3 mm")),
    Sketcher.Constraint("Radius", 5, Q("2 mm")),
    Sketcher.Constraint("DistanceX", 0, 2, 0, 1, Q("40 mm")),
    Sketcher.Constraint("Angle", 4, Q("120 deg")),
    Sketcher.Constraint("Distance", 4, Q("20 mm")),
    Sketcher.Constraint("DistanceY", -1, 1, 37, 3, Q("14 mm")),
    Sketcher.Constraint("Radius", 37, Q("4.682496 mm")),
    Sketcher.Constraint("DistanceX", 36, 2, 36, 1, Q("23.932758 mm")),
    Sketcher.Constraint("DistanceX", 9, 3, -1, 1, Q("25.806779 mm")),
    Sketcher.Constraint("DistanceX", 5, 3, -1, 1, Q("43.454215 mm")),
    Sketcher.Constraint("DistanceY", -1, 1, 5, 3, Q("21.698245 mm")),
    Sketcher.Constraint("DistanceY", -1, 1, 9, 3, Q("9.253545 mm")),
])
pocket1 = doc.addObject("PartDesign::Pocket", "Pocket")
body.addObject(pocket1)
pocket1.Profile = sketch6
pocket1.Type = "ThroughAll"

# Sketch on XY plane
sketch7 = doc.addObject("Sketcher::SketchObject", "Sketch006")
body.addObject(sketch7)
sketch7.AttachmentSupport = (doc.XY_Plane, [""])
sketch7.MapMode = "FlatFace"
sketch7.AttachmentOffset = App.Placement(Vector(0, 0, 1.5), App.Rotation())
sketch7.addGeometry([
    Part.LineSegment(Vector(60, 39, 0), Vector(22.6, 39, 0)),  # 0
    Part.LineSegment(Vector(22.6, 39, 0), Vector(22.6, 35.5, 0)),  # 1
    Part.ArcOfCircle(Part.Circle(Vector(14.1, 35.5, 0), Vector(0, 0, 1), 8.5), math.radians(-90), math.radians(0)),  # 2
    Part.LineSegment(Vector(14.1, 27, 0), Vector(-14.1, 27, 0)),  # 3
    Part.ArcOfCircle(Part.Circle(Vector(-14.1, 35.5, 0), Vector(0, 0, 1), 8.5), math.radians(180), math.radians(270)),  # 4
    Part.LineSegment(Vector(-22.6, 35.5, 0), Vector(-22.6, 39, 0)),  # 5
    Part.LineSegment(Vector(-22.6, 39, 0), Vector(-60, 39, 0)),  # 6
    Part.ArcOfCircle(Part.Circle(Vector(-60, 32.5, 0), Vector(0, 0, 1), 6.5), math.radians(90), math.radians(180)),  # 7
    Part.LineSegment(Vector(-66.5, 32.5, 0), Vector(-66.5, 28.3, 0)),  # 8
    Part.ArcOfCircle(Part.Circle(Vector(-60, 28.3, 0), Vector(0, 0, 1), 6.5), math.radians(-180), math.radians(-130)),  # 9
    Part.LineSegment(Vector(-64.1, 23.3, 0), Vector(-59.8, 19.7, 0)),  # 10
    Part.ArcOfCircle(Part.Circle(Vector(-65.2, 13.1, 0), Vector(0, 0, 1), 8.5), math.radians(0), math.radians(50)),  # 11
    Part.LineSegment(Vector(-56.7, 13.1, 0), Vector(-56.7, -13.1, 0)),  # 12
    Part.ArcOfCircle(Part.Circle(Vector(-65.2, -13.1, 0), Vector(0, 0, 1), 8.5), math.radians(-50), math.radians(0)),  # 13
    Part.LineSegment(Vector(-59.8, -19.7, 0), Vector(-64.1, -23.3, 0)),  # 14
    Part.ArcOfCircle(Part.Circle(Vector(-60, -28.3, 0), Vector(0, 0, 1), 6.5), math.radians(130), math.radians(180)),  # 15
    Part.LineSegment(Vector(-66.5, -28.3, 0), Vector(-66.5, -32.5, 0)),  # 16
    Part.ArcOfCircle(Part.Circle(Vector(-60, -32.5, 0), Vector(0, 0, 1), 6.5), math.radians(180), math.radians(270)),  # 17
    Part.LineSegment(Vector(-60, -39, 0), Vector(-22.6, -39, 0)),  # 18
    Part.LineSegment(Vector(-22.6, -39, 0), Vector(-22.6, -35.5, 0)),  # 19
    Part.ArcOfCircle(Part.Circle(Vector(-14.1, -35.5, 0), Vector(0, 0, 1), 8.5), math.radians(90), math.radians(180)),  # 20
    Part.LineSegment(Vector(-14.1, -27, 0), Vector(14.1, -27, 0)),  # 21
    Part.ArcOfCircle(Part.Circle(Vector(14.1, -35.5, 0), Vector(0, 0, 1), 8.5), math.radians(0), math.radians(90)),  # 22
    Part.LineSegment(Vector(22.6, -35.5, 0), Vector(22.6, -39, 0)),  # 23
    Part.LineSegment(Vector(22.6, -39, 0), Vector(60, -39, 0)),  # 24
    Part.ArcOfCircle(Part.Circle(Vector(60, -32.5, 0), Vector(0, 0, 1), 6.5), math.radians(-90), math.radians(0)),  # 25
    Part.LineSegment(Vector(66.5, -32.5, 0), Vector(66.5, -28.3, 0)),  # 26
    Part.ArcOfCircle(Part.Circle(Vector(60, -28.3, 0), Vector(0, 0, 1), 6.5), math.radians(0), math.radians(50)),  # 27
    Part.LineSegment(Vector(64.1, -23.3, 0), Vector(59.8, -19.7, 0)),  # 28
    Part.ArcOfCircle(Part.Circle(Vector(65.2, -13.1, 0), Vector(0, 0, 1), 8.5), math.radians(180), math.radians(230)),  # 29
    Part.LineSegment(Vector(56.7, -13.1, 0), Vector(56.7, 13.1, 0)),  # 30
    Part.ArcOfCircle(Part.Circle(Vector(65.2, 13.1, 0), Vector(0, 0, 1), 8.5), math.radians(130), math.radians(180)),  # 31
    Part.LineSegment(Vector(59.8, 19.7, 0), Vector(64.1, 23.3, 0)),  # 32
    Part.ArcOfCircle(Part.Circle(Vector(60, 28.3, 0), Vector(0, 0, 1), 6.5), math.radians(-50), math.radians(0)),  # 33
    Part.LineSegment(Vector(66.5, 28.3, 0), Vector(66.5, 32.5, 0)),  # 34
    Part.ArcOfCircle(Part.Circle(Vector(60, 32.5, 0), Vector(0, 0, 1), 6.5), math.radians(0), math.radians(90)),  # 35
    Part.LineSegment(Vector(24.1, 37.5, 0), Vector(60, 37.5, 0)),  # 36
    Part.ArcOfCircle(Part.Circle(Vector(60, 32.5, 0), Vector(0, 0, 1), 5), math.radians(0), math.radians(90)),  # 37
    Part.LineSegment(Vector(65, 32.5, 0), Vector(65, 28.3, 0)),  # 38
    Part.ArcOfCircle(Part.Circle(Vector(60, 28.3, 0), Vector(0, 0, 1), 5), math.radians(-50), math.radians(0)),  # 39
    Part.LineSegment(Vector(63.2, 24.4, 0), Vector(58.8, 20.8, 0)),  # 40
    Part.ArcOfCircle(Part.Circle(Vector(65.2, 13.1, 0), Vector(0, 0, 1), 10), math.radians(130), math.radians(180)),  # 41
    Part.LineSegment(Vector(55.2, 13.1, 0), Vector(55.2, -13.1, 0)),  # 42
    Part.ArcOfCircle(Part.Circle(Vector(65.2, -13.1, 0), Vector(0, 0, 1), 10), math.radians(180), math.radians(230)),  # 43
    Part.LineSegment(Vector(58.8, -20.8, 0), Vector(63.2, -24.4, 0)),  # 44
    Part.ArcOfCircle(Part.Circle(Vector(60, -28.3, 0), Vector(0, 0, 1), 5), math.radians(0), math.radians(50)),  # 45
    Part.LineSegment(Vector(65, -28.3, 0), Vector(65, -32.5, 0)),  # 46
    Part.ArcOfCircle(Part.Circle(Vector(60, -32.5, 0), Vector(0, 0, 1), 5), math.radians(-90), math.radians(0)),  # 47
    Part.LineSegment(Vector(60, -37.5, 0), Vector(24.1, -37.5, 0)),  # 48
    Part.LineSegment(Vector(24.1, -37.5, 0), Vector(24.1, -35.5, 0)),  # 49
    Part.ArcOfCircle(Part.Circle(Vector(14.1, -35.5, 0), Vector(0, 0, 1), 10), math.radians(0), math.radians(90)),  # 50
    Part.LineSegment(Vector(14.1, -25.5, 0), Vector(-14.1, -25.5, 0)),  # 51
    Part.ArcOfCircle(Part.Circle(Vector(-14.1, -35.5, 0), Vector(0, 0, 1), 10), math.radians(90), math.radians(180)),  # 52
    Part.LineSegment(Vector(-24.1, -35.5, 0), Vector(-24.1, -37.5, 0)),  # 53
    Part.LineSegment(Vector(-24.1, -37.5, 0), Vector(-60, -37.5, 0)),  # 54
    Part.ArcOfCircle(Part.Circle(Vector(-60, -32.5, 0), Vector(0, 0, 1), 5), math.radians(180), math.radians(270)),  # 55
    Part.LineSegment(Vector(-65, -32.5, 0), Vector(-65, -28.3, 0)),  # 56
    Part.ArcOfCircle(Part.Circle(Vector(-60, -28.3, 0), Vector(0, 0, 1), 5), math.radians(130), math.radians(180)),  # 57
    Part.LineSegment(Vector(-63.2, -24.4, 0), Vector(-58.8, -20.8, 0)),  # 58
    Part.ArcOfCircle(Part.Circle(Vector(-65.2, -13.1, 0), Vector(0, 0, 1), 10), math.radians(-50), math.radians(0)),  # 59
    Part.LineSegment(Vector(-55.2, -13.1, 0), Vector(-55.2, 13.1, 0)),  # 60
    Part.ArcOfCircle(Part.Circle(Vector(-65.2, 13.1, 0), Vector(0, 0, 1), 10), math.radians(0), math.radians(50)),  # 61
    Part.LineSegment(Vector(-58.8, 20.8, 0), Vector(-63.2, 24.4, 0)),  # 62
    Part.ArcOfCircle(Part.Circle(Vector(-60, 28.3, 0), Vector(0, 0, 1), 5), math.radians(180), math.radians(230)),  # 63
    Part.LineSegment(Vector(-65, 28.3, 0), Vector(-65, 32.5, 0)),  # 64
    Part.ArcOfCircle(Part.Circle(Vector(-60, 32.5, 0), Vector(0, 0, 1), 5), math.radians(90), math.radians(180)),  # 65
    Part.LineSegment(Vector(-60, 37.5, 0), Vector(-24.1, 37.5, 0)),  # 66
    Part.LineSegment(Vector(-24.1, 37.5, 0), Vector(-24.1, 35.5, 0)),  # 67
    Part.ArcOfCircle(Part.Circle(Vector(-14.1, 35.5, 0), Vector(0, 0, 1), 10), math.radians(180), math.radians(270)),  # 68
    Part.LineSegment(Vector(-14.1, 25.5, 0), Vector(14.1, 25.5, 0)),  # 69
    Part.ArcOfCircle(Part.Circle(Vector(14.1, 35.5, 0), Vector(0, 0, 1), 10), math.radians(-90), math.radians(0)),  # 70
    Part.LineSegment(Vector(24.1, 35.5, 0), Vector(24.1, 37.5, 0)),  # 71
], False)
sketch7.addConstraint([
    Sketcher.Constraint("Coincident", 0, 2, 1, 1),
    Sketcher.Constraint("Tangent", 1, 2, 2, 2),
    Sketcher.Constraint("Tangent", 2, 1, 3, 1),
    Sketcher.Constraint("Tangent", 3, 2, 4, 2),
    Sketcher.Constraint("Tangent", 4, 1, 5, 1),
    Sketcher.Constraint("Coincident", 5, 2, 6, 1),
    Sketcher.Constraint("Tangent", 6, 2, 7, 1),
    Sketcher.Constraint("Tangent", 7, 2, 8, 1),
    Sketcher.Constraint("Tangent", 8, 2, 9, 1),
    Sketcher.Constraint("Tangent", 9, 2, 10, 1),
    Sketcher.Constraint("Tangent", 10, 2, 11, 2),
    Sketcher.Constraint("Tangent", 11, 1, 12, 1),
    Sketcher.Constraint("Tangent", 12, 2, 13, 2),
    Sketcher.Constraint("Tangent", 13, 1, 14, 1),
    Sketcher.Constraint("Tangent", 14, 2, 15, 1),
    Sketcher.Constraint("Tangent", 15, 2, 16, 1),
    Sketcher.Constraint("Tangent", 16, 2, 17, 1),
    Sketcher.Constraint("Tangent", 17, 2, 18, 1),
    Sketcher.Constraint("Coincident", 18, 2, 19, 1),
    Sketcher.Constraint("Tangent", 19, 2, 20, 2),
    Sketcher.Constraint("Tangent", 20, 1, 21, 1),
    Sketcher.Constraint("Tangent", 21, 2, 22, 2),
    Sketcher.Constraint("Tangent", 22, 1, 23, 1),
    Sketcher.Constraint("Coincident", 23, 2, 24, 1),
    Sketcher.Constraint("Tangent", 24, 2, 25, 1),
    Sketcher.Constraint("Tangent", 25, 2, 26, 1),
    Sketcher.Constraint("Tangent", 26, 2, 27, 1),
    Sketcher.Constraint("Tangent", 27, 2, 28, 1),
    Sketcher.Constraint("Tangent", 28, 2, 29, 2),
    Sketcher.Constraint("Tangent", 29, 1, 30, 1),
    Sketcher.Constraint("Tangent", 30, 2, 31, 2),
    Sketcher.Constraint("Tangent", 31, 1, 32, 1),
    Sketcher.Constraint("Tangent", 32, 2, 33, 1),
    Sketcher.Constraint("Tangent", 33, 2, 34, 1),
    Sketcher.Constraint("Tangent", 34, 2, 35, 1),
    Sketcher.Constraint("Tangent", 35, 2, 0, 1),
    Sketcher.Constraint("Tangent", 36, 2, 37, 2),
    Sketcher.Constraint("Tangent", 37, 1, 38, 1),
    Sketcher.Constraint("Tangent", 38, 2, 39, 2),
    Sketcher.Constraint("Tangent", 39, 1, 40, 1),
    Sketcher.Constraint("Tangent", 40, 2, 41, 1),
    Sketcher.Constraint("Tangent", 41, 2, 42, 1),
    Sketcher.Constraint("Tangent", 42, 2, 43, 1),
    Sketcher.Constraint("Tangent", 43, 2, 44, 1),
    Sketcher.Constraint("Tangent", 44, 2, 45, 2),
    Sketcher.Constraint("Tangent", 45, 1, 46, 1),
    Sketcher.Constraint("Tangent", 46, 2, 47, 2),
    Sketcher.Constraint("Tangent", 47, 1, 48, 1),
    Sketcher.Constraint("Coincident", 48, 2, 49, 1),
    Sketcher.Constraint("Tangent", 49, 2, 50, 1),
    Sketcher.Constraint("Tangent", 50, 2, 51, 1),
    Sketcher.Constraint("Tangent", 51, 2, 52, 1),
    Sketcher.Constraint("Tangent", 52, 2, 53, 1),
    Sketcher.Constraint("Coincident", 53, 2, 54, 1),
    Sketcher.Constraint("Tangent", 54, 2, 55, 2),
    Sketcher.Constraint("Tangent", 55, 1, 56, 1),
    Sketcher.Constraint("Tangent", 56, 2, 57, 2),
    Sketcher.Constraint("Tangent", 57, 1, 58, 1),
    Sketcher.Constraint("Tangent", 58, 2, 59, 1),
    Sketcher.Constraint("Tangent", 59, 2, 60, 1),
    Sketcher.Constraint("Tangent", 60, 2, 61, 1),
    Sketcher.Constraint("Tangent", 61, 2, 62, 1),
    Sketcher.Constraint("Tangent", 62, 2, 63, 2),
    Sketcher.Constraint("Tangent", 63, 1, 64, 1),
    Sketcher.Constraint("Tangent", 64, 2, 65, 2),
    Sketcher.Constraint("Tangent", 65, 1, 66, 1),
    Sketcher.Constraint("Coincident", 66, 2, 67, 1),
    Sketcher.Constraint("Tangent", 67, 2, 68, 1),
    Sketcher.Constraint("Tangent", 68, 2, 69, 1),
    Sketcher.Constraint("Tangent", 69, 2, 70, 1),
    Sketcher.Constraint("Tangent", 70, 2, 71, 1),
    Sketcher.Constraint("Coincident", 71, 2, 36, 1),
    Sketcher.Constraint("Horizontal", 0),
    Sketcher.Constraint("Vertical", 1),
    Sketcher.Constraint("Horizontal", 3),
    Sketcher.Constraint("Vertical", 5),
    Sketcher.Constraint("Horizontal", 6),
    Sketcher.Constraint("Vertical", 8),
    Sketcher.Constraint("Vertical", 12),
    Sketcher.Constraint("Vertical", 16),
    Sketcher.Constraint("Horizontal", 18),
    Sketcher.Constraint("Vertical", 19),
    Sketcher.Constraint("Horizontal", 21),
    Sketcher.Constraint("Vertical", 23),
    Sketcher.Constraint("Horizontal", 24),
    Sketcher.Constraint("Vertical", 26),
    Sketcher.Constraint("Vertical", 30),
    Sketcher.Constraint("Vertical", 34),
    Sketcher.Constraint("Horizontal", 36),
    Sketcher.Constraint("Vertical", 38),
    Sketcher.Constraint("Vertical", 42),
    Sketcher.Constraint("Vertical", 46),
    Sketcher.Constraint("Horizontal", 48),
    Sketcher.Constraint("Vertical", 49),
    Sketcher.Constraint("Horizontal", 51),
    Sketcher.Constraint("Vertical", 53),
    Sketcher.Constraint("Horizontal", 54),
    Sketcher.Constraint("Vertical", 56),
    Sketcher.Constraint("Vertical", 60),
    Sketcher.Constraint("Vertical", 64),
    Sketcher.Constraint("Horizontal", 66),
    Sketcher.Constraint("Vertical", 67),
    Sketcher.Constraint("Horizontal", 69),
    Sketcher.Constraint("Vertical", 71),
    Sketcher.Constraint("Coincident", 37, 3, 35, 3),
    Sketcher.Constraint("Coincident", 39, 3, 33, 3),
    Sketcher.Constraint("Coincident", 41, 3, 31, 3),
    Sketcher.Constraint("Coincident", 43, 3, 29, 3),
    Sketcher.Constraint("Coincident", 45, 3, 27, 3),
    Sketcher.Constraint("Coincident", 47, 3, 25, 3),
    Sketcher.Constraint("Coincident", 50, 3, 22, 3),
    Sketcher.Constraint("Coincident", 52, 3, 20, 3),
    Sketcher.Constraint("Coincident", 55, 3, 17, 3),
    Sketcher.Constraint("Coincident", 57, 3, 15, 3),
    Sketcher.Constraint("Coincident", 59, 3, 13, 3),
    Sketcher.Constraint("Coincident", 61, 3, 11, 3),
    Sketcher.Constraint("Coincident", 63, 3, 9, 3),
    Sketcher.Constraint("Coincident", 65, 3, 7, 3),
    Sketcher.Constraint("Coincident", 68, 3, 4, 3),
    Sketcher.Constraint("Coincident", 70, 3, 2, 3),
    Sketcher.Constraint("Equal", 2, 4),
    Sketcher.Constraint("Equal", 7, 9),
    Sketcher.Constraint("Equal", 4, 11),
    Sketcher.Constraint("Equal", 11, 13),
    Sketcher.Constraint("Equal", 9, 15),
    Sketcher.Constraint("Equal", 15, 17),
    Sketcher.Constraint("Equal", 13, 20),
    Sketcher.Constraint("Equal", 20, 22),
    Sketcher.Constraint("Equal", 17, 25),
    Sketcher.Constraint("Equal", 25, 27),
    Sketcher.Constraint("Equal", 22, 29),
    Sketcher.Constraint("Equal", 29, 31),
    Sketcher.Constraint("Equal", 27, 33),
    Sketcher.Constraint("Equal", 33, 35),
    Sketcher.Constraint("Equal", 39, 45),
    Sketcher.Constraint("Equal", 43, 50),
    Sketcher.Constraint("Equal", 47, 55),
    Sketcher.Constraint("Equal", 52, 59),
    Sketcher.Constraint("Equal", 57, 63),
    Sketcher.Constraint("Equal", 61, 68),
    Sketcher.Constraint("Symmetric", 2, 3, 20, 3, -1, 1),
    Sketcher.Constraint("Symmetric", 7, 3, 25, 3, -1, 1),
    Sketcher.Constraint("Symmetric", 11, 3, 29, 3, -1, 1),
    Sketcher.Constraint("Symmetric", 15, 3, 33, 3, -1, 1),
    Sketcher.Constraint("Symmetric", 17, 3, 25, 3, -2),
    Sketcher.Constraint("Symmetric", 0, 2, 5, 2, -2),
    Sketcher.Constraint("Symmetric", 14, 2, 27, 2, -2),
    Sketcher.Constraint("Symmetric", 10, 2, 31, 1, -2),
    Sketcher.Constraint("Parallel", 32, 40),
    Sketcher.Constraint("Vertical", 2, 3, 22, 3),
    Sketcher.Constraint("Radius", 37, Q("5 mm")),
    Sketcher.Constraint("Radius", 41, Q("10 mm")),
    Sketcher.Constraint("Radius", 2, Q("8.5 mm")),
    Sketcher.Constraint("DistanceY", 49, 1, 49, 2, Q("2 mm")),
    Sketcher.Constraint("DistanceX", 7, 3, -1, 1, Q("60 mm")),
    Sketcher.Constraint("DistanceY", -1, 1, 0, 2, Q("39 mm")),
    Sketcher.Constraint("DistanceX", 11, 3, -1, 1, Q("65.2 mm")),
    Sketcher.Constraint("DistanceX", 3, 2, 3, 1, Q("28.283928 mm")),
    Sketcher.Constraint("DistanceY", 8, 2, 8, 1, Q("4.216609 mm")),
    Sketcher.Constraint("DistanceY", 12, 2, 12, 1, Q("26.225404 mm")),
])
pad6 = doc.addObject("PartDesign::Pad", "Pad005")
body.addObject(pad6)
pad6.Profile = sketch7
pad6.Type = "TwoLengths"
pad6.Length = 0.1
pad6.Length2 = 3.1

doc.recompute()
